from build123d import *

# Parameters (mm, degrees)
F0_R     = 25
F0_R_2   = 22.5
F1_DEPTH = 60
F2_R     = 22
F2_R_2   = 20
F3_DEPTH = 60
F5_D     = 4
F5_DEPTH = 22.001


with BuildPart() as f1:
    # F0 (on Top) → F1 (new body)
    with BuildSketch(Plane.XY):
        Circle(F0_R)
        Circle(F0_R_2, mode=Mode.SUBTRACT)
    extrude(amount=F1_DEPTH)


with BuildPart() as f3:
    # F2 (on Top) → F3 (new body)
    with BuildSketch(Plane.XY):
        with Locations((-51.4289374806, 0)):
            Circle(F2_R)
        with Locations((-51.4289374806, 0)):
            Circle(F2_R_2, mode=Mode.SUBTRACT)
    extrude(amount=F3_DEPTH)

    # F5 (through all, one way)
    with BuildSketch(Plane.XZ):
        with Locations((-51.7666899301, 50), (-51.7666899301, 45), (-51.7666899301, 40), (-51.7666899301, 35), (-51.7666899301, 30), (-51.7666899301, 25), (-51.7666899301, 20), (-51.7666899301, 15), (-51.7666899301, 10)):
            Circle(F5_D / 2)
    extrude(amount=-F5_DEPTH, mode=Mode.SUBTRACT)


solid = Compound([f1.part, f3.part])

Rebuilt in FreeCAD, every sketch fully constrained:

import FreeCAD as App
import Part
import Sketcher

doc = App.newDocument("Part")
body = doc.addObject("PartDesign::Body", "Body")

# Sketch on XY plane
sketch1 = body.newObject("Sketcher::SketchObject", "Sketch")
sketch1.AttachmentSupport = (doc.getObject("XY_Plane"), [""])
sketch1.MapMode = "FlatFace"
sketch1.addGeometry(Part.Circle(App.Vector(0, 0, 0), App.Vector(0, 0, 1), 25), False)
sketch1.addGeometry(Part.Circle(App.Vector(0, 0, 0), App.Vector(0, 0, 1), 22.5), False)
sketch1.addConstraint(Sketcher.Constraint("Coincident", 0, 3, -1, 1))
sketch1.addConstraint(Sketcher.Constraint("Coincident", 1, 3, -1, 1))
sketch1.addConstraint(Sketcher.Constraint("Diameter", 0, 50.0))
sketch1.addConstraint(Sketcher.Constraint("Diameter", 1, 45.0))
pad1 = body.newObject("PartDesign::Pad", "Pad")
pad1.Profile = sketch1
pad1.Length = 60
body2 = doc.addObject("PartDesign::Body", "Body001")

# Sketch on XY plane
sketch2 = body2.newObject("Sketcher::SketchObject", "Sketch001")
sketch2.AttachmentSupport = (doc.getObject("XY_Plane001"), [""])
sketch2.MapMode = "FlatFace"
sketch2.addGeometry(Part.Circle(App.Vector(-51.428937, 0, 0), App.Vector(0, 0, 1), 22), False)
sketch2.addGeometry(Part.Circle(App.Vector(-51.428937, 0, 0), App.Vector(0, 0, 1), 20), False)
sketch2.addConstraint(Sketcher.Constraint("Coincident", 1, 3, 0, 3))
sketch2.addConstraint(Sketcher.Constraint("PointOnObject", 0, 3, -1))
sketch2.addConstraint(Sketcher.Constraint("Diameter", 0, 44.0))
sketch2.addConstraint(Sketcher.Constraint("Diameter", 1, 40.0))
sketch2.addConstraint(Sketcher.Constraint("DistanceX", 0, 3, -1, 1, 51.428937))
pad2 = body2.newObject("PartDesign::Pad", "Pad001")
pad2.Profile = sketch2
pad2.Length = 60

# Sketch on XZ plane
sketch3 = body2.newObject("Sketcher::SketchObject", "Sketch002")
sketch3.AttachmentSupport = (doc.getObject("XZ_Plane001"), [""])
sketch3.MapMode = "FlatFace"
sketch3.addGeometry(Part.Circle(App.Vector(-51.76669, 10, 0), App.Vector(0, 0, 1), 2), False)
sketch3.addGeometry(Part.Circle(App.Vector(-51.76669, 50, 0), App.Vector(0, 0, 1), 2), False)
sketch3.addGeometry(Part.Circle(App.Vector(-51.76669, 45, 0), App.Vector(0, 0, 1), 2), False)
sketch3.addGeometry(Part.Circle(App.Vector(-51.76669, 40, 0), App.Vector(0, 0, 1), 2), False)
sketch3.addGeometry(Part.Circle(App.Vector(-51.76669, 35, 0), App.Vector(0, 0, 1), 2), False)
sketch3.addGeometry(Part.Circle(App.Vector(-51.76669, 30, 0), App.Vector(0, 0, 1), 2), False)
sketch3.addGeometry(Part.Circle(App.Vector(-51.76669, 25, 0), App.Vector(0, 0, 1), 2), False)
sketch3.addGeometry(Part.Circle(App.Vector(-51.76669, 20, 0), App.Vector(0, 0, 1), 2), False)
sketch3.addGeometry(Part.Circle(App.Vector(-51.76669, 15, 0), App.Vector(0, 0, 1), 2), False)
sketch3.addConstraint(Sketcher.Constraint("Equal", 0, 1))
sketch3.addConstraint(Sketcher.Constraint("Equal", 1, 2))
sketch3.addConstraint(Sketcher.Constraint("Equal", 2, 3))
sketch3.addConstraint(Sketcher.Constraint("Equal", 3, 4))
sketch3.addConstraint(Sketcher.Constraint("Equal", 4, 5))
sketch3.addConstraint(Sketcher.Constraint("Equal", 5, 6))
sketch3.addConstraint(Sketcher.Constraint("Equal", 6, 7))
sketch3.addConstraint(Sketcher.Constraint("Equal", 7, 8))
sketch3.addConstraint(Sketcher.Constraint("Vertical", 0, 3, 1, 3))
sketch3.addConstraint(Sketcher.Constraint("Vertical", 1, 3, 2, 3))
sketch3.addConstraint(Sketcher.Constraint("Vertical", 2, 3, 3, 3))
sketch3.addConstraint(Sketcher.Constraint("Vertical", 3, 3, 4, 3))
sketch3.addConstraint(Sketcher.Constraint("Vertical", 4, 3, 5, 3))
sketch3.addConstraint(Sketcher.Constraint("Vertical", 5, 3, 6, 3))
sketch3.addConstraint(Sketcher.Constraint("Vertical", 6, 3, 7, 3))
sketch3.addConstraint(Sketcher.Constraint("Vertical", 7, 3, 8, 3))
sketch3.addConstraint(Sketcher.Constraint("Diameter", 0, 4.0))
sketch3.addConstraint(Sketcher.Constraint("DistanceY", -1, 1, 0, 3, 10.0))
sketch3.addConstraint(Sketcher.Constraint("DistanceY", -1, 1, 1, 3, 50.0))
sketch3.addConstraint(Sketcher.Constraint("DistanceY", -1, 1, 2, 3, 45.0))
sketch3.addConstraint(Sketcher.Constraint("DistanceY", -1, 1, 3, 3, 40.0))
sketch3.addConstraint(Sketcher.Constraint("DistanceY", -1, 1, 4, 3, 35.0))
sketch3.addConstraint(Sketcher.Constraint("DistanceY", -1, 1, 5, 3, 30.0))
sketch3.addConstraint(Sketcher.Constraint("DistanceY", -1, 1, 6, 3, 25.0))
sketch3.addConstraint(Sketcher.Constraint("DistanceY", -1, 1, 7, 3, 20.0))
sketch3.addConstraint(Sketcher.Constraint("DistanceY", -1, 1, 8, 3, 15.0))
sketch3.addConstraint(Sketcher.Constraint("DistanceX", 0, 3, -1, 1, 51.76669))
pocket1 = body2.newObject("PartDesign::Pocket", "Pocket")
pocket1.Profile = sketch3
pocket1.Type = "ThroughAll"

doc.recompute()
